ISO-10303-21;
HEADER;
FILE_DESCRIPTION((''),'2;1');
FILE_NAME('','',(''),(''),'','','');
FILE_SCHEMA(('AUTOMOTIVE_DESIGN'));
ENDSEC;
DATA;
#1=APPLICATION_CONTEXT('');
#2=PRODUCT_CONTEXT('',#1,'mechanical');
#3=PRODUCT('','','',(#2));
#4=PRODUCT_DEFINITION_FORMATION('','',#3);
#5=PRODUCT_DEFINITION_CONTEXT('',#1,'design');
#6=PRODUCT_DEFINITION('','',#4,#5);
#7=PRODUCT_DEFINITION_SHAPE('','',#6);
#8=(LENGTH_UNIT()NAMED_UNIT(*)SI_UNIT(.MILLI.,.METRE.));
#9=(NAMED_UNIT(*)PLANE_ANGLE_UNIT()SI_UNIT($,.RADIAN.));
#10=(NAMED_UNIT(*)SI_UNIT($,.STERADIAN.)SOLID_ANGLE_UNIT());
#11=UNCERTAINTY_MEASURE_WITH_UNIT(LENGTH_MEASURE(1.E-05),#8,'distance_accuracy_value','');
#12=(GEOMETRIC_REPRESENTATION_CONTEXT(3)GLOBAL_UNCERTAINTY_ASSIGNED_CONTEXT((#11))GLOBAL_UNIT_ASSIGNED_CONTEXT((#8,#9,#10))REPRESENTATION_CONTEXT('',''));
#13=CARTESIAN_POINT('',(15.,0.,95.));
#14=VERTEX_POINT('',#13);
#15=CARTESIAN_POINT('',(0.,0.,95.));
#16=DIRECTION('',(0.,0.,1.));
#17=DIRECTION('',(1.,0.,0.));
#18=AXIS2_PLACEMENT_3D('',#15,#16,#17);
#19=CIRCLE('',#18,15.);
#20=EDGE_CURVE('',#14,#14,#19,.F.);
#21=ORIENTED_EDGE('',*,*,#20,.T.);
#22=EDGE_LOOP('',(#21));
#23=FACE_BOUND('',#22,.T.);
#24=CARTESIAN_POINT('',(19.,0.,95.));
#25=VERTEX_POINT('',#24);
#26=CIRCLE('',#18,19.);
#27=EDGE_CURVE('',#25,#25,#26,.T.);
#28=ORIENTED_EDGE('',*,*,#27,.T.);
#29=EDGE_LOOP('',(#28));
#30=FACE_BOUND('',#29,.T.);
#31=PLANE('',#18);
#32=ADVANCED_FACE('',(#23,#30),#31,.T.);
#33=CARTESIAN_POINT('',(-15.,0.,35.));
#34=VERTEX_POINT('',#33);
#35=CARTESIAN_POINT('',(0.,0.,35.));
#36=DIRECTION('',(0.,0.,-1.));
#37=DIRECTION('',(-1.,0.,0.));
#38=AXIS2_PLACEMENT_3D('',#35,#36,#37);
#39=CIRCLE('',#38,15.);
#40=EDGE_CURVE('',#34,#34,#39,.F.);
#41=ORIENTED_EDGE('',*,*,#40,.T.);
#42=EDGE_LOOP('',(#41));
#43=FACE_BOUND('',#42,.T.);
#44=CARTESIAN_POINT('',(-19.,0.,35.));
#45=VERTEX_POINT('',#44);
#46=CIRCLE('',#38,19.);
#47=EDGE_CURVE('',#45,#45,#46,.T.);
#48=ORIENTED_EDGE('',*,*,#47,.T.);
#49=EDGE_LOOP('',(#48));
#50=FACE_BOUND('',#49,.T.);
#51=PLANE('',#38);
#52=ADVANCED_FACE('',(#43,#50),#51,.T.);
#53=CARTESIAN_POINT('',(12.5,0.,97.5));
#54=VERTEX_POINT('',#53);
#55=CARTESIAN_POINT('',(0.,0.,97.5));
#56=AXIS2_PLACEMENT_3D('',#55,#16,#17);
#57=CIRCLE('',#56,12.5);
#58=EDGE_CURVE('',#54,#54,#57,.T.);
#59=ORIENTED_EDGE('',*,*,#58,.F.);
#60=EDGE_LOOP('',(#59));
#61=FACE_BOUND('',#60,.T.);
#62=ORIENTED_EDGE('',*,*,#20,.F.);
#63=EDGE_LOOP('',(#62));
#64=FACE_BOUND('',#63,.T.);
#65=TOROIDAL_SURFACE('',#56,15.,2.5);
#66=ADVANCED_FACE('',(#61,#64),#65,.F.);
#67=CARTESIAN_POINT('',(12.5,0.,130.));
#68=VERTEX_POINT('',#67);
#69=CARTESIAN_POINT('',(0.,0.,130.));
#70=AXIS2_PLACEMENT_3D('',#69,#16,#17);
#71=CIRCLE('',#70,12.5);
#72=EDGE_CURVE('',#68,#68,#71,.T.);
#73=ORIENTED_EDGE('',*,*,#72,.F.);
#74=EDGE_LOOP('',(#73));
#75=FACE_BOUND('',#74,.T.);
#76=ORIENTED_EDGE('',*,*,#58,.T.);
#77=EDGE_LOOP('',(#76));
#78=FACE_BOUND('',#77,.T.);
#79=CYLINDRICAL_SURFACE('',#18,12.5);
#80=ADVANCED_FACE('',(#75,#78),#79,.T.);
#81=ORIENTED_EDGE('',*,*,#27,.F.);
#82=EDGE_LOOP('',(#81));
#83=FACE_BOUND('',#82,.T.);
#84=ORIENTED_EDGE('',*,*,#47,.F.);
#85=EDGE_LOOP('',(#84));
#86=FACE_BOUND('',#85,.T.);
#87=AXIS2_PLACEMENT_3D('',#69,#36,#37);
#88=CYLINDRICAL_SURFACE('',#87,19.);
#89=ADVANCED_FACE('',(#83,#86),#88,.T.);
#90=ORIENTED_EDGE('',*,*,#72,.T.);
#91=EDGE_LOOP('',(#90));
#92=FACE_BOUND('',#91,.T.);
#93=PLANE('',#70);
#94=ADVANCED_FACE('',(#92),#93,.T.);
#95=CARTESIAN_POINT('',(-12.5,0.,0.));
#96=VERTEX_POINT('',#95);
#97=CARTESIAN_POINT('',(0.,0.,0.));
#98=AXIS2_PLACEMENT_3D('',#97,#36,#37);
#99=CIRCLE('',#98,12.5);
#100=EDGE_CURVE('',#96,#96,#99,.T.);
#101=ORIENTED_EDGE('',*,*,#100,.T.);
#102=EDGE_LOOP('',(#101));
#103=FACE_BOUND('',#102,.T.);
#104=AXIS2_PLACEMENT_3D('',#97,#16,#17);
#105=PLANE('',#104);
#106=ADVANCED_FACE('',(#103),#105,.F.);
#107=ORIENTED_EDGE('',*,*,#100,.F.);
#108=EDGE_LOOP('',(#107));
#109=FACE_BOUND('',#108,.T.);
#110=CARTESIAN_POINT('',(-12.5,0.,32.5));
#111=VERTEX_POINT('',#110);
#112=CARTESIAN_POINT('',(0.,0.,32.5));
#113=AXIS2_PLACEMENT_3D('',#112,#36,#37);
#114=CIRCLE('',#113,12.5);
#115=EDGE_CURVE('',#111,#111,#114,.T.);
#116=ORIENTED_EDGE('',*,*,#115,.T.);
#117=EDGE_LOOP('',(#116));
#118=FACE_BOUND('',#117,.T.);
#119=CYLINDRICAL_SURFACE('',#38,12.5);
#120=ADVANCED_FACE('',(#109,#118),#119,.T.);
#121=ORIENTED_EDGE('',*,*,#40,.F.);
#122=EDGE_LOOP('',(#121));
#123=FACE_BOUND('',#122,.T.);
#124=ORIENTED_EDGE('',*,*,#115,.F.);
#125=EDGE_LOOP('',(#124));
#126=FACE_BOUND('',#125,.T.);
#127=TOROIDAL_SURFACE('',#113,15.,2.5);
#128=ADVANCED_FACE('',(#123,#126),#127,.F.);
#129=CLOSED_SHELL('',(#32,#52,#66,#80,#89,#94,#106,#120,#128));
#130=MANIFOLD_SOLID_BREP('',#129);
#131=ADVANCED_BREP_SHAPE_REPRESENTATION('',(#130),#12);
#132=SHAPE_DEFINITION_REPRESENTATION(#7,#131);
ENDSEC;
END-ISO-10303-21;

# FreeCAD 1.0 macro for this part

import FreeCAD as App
import Part
import Sketcher
from FreeCAD import Vector
Q = App.Units.Quantity


def edges_at(feature, points):
    """Names of the edges that pass closest to the given points."""
    edges = feature.Shape.Edges
    near = lambda p: min(range(len(edges)), key=lambda i: edges[i].distToShape(Part.Vertex(*p))[0])
    return sorted({f"Edge{near(p) + 1}" for p in points})

doc = App.newDocument("Part")
body = doc.addObject("PartDesign::Body", "Body")

sketch1 = body.newObject("Sketcher::SketchObject", "Sketch")
sketch1.AttachmentSupport = (doc.getObject("XY_Plane"), [""])
sketch1.MapMode = "FlatFace"
sketch1.addGeometry(Part.Circle(Vector(0, 0, 0), Vector(0, 0, 1), 19), False)
sketch1.addConstraint(Sketcher.Constraint("Coincident", 0, 3, -1, 1))
sketch1.addConstraint(Sketcher.Constraint("Diameter", 0, Q("38 mm")))
pad1 = body.newObject("PartDesign::Pad", "Pad")
pad1.Profile = sketch1
pad1.Length = 130

sketch2 = body.newObject("Sketcher::SketchObject", "Sketch001")
sketch2.AttachmentSupport = (doc.getObject("XY_Plane"), [""])
sketch2.MapMode = "FlatFace"
sketch2.AttachmentOffset = App.Placement(Vector(0, 0, 130), App.Rotation())
sketch2.addGeometry(Part.Circle(Vector(0, 0, 0), Vector(0, 0, 1), 19), False)
sketch2.addGeometry(Part.Circle(Vector(0, 0, 0), Vector(0, 0, 1), 12), False)
sketch2.addConstraint(Sketcher.Constraint("Coincident", 0, 3, -1, 1))
sketch2.addConstraint(Sketcher.Constraint("Coincident", 1, 3, -1, 1))
sketch2.addConstraint(Sketcher.Constraint("Diameter", 0, Q("38 mm")))
sketch2.addConstraint(Sketcher.Constraint("Diameter", 1, Q("25 mm")))
pocket1 = body.newObject("PartDesign::Pocket", "Pocket")
pocket1.Profile = sketch2
pocket1.Length = 35

sketch3 = body.newObject("Sketcher::SketchObject", "Sketch002")
sketch3.AttachmentSupport = (doc.getObject("XY_Plane"), [""])
sketch3.MapMode = "FlatFace"
sketch3.addGeometry(Part.Circle(Vector(0, 0, 0), Vector(0, 0, 1), 19), False)
sketch3.addGeometry(Part.Circle(Vector(0, 0, 0), Vector(0, 0, 1), 12), False)
sketch3.addConstraint(Sketcher.Constraint("Coincident", 0, 3, -1, 1))
sketch3.addConstraint(Sketcher.Constraint("Coincident", 1, 3, -1, 1))
sketch3.addConstraint(Sketcher.Constraint("Diameter", 0, Q("38 mm")))
sketch3.addConstraint(Sketcher.Constraint("Diameter", 1, Q("25 mm")))
pocket2 = body.newObject("PartDesign::Pocket", "Pocket001")
pocket2.Profile = sketch3
pocket2.Length = 35
pocket2.Reversed = True
doc.recompute()

fillet = body.newObject("PartDesign::Fillet", "Fillet")
fillet.Base = (pocket2, edges_at(pocket2, [(12.5, 0, 35), (-12.5, 0, 95)]))
fillet.Radius = 2.5

doc.recompute()
